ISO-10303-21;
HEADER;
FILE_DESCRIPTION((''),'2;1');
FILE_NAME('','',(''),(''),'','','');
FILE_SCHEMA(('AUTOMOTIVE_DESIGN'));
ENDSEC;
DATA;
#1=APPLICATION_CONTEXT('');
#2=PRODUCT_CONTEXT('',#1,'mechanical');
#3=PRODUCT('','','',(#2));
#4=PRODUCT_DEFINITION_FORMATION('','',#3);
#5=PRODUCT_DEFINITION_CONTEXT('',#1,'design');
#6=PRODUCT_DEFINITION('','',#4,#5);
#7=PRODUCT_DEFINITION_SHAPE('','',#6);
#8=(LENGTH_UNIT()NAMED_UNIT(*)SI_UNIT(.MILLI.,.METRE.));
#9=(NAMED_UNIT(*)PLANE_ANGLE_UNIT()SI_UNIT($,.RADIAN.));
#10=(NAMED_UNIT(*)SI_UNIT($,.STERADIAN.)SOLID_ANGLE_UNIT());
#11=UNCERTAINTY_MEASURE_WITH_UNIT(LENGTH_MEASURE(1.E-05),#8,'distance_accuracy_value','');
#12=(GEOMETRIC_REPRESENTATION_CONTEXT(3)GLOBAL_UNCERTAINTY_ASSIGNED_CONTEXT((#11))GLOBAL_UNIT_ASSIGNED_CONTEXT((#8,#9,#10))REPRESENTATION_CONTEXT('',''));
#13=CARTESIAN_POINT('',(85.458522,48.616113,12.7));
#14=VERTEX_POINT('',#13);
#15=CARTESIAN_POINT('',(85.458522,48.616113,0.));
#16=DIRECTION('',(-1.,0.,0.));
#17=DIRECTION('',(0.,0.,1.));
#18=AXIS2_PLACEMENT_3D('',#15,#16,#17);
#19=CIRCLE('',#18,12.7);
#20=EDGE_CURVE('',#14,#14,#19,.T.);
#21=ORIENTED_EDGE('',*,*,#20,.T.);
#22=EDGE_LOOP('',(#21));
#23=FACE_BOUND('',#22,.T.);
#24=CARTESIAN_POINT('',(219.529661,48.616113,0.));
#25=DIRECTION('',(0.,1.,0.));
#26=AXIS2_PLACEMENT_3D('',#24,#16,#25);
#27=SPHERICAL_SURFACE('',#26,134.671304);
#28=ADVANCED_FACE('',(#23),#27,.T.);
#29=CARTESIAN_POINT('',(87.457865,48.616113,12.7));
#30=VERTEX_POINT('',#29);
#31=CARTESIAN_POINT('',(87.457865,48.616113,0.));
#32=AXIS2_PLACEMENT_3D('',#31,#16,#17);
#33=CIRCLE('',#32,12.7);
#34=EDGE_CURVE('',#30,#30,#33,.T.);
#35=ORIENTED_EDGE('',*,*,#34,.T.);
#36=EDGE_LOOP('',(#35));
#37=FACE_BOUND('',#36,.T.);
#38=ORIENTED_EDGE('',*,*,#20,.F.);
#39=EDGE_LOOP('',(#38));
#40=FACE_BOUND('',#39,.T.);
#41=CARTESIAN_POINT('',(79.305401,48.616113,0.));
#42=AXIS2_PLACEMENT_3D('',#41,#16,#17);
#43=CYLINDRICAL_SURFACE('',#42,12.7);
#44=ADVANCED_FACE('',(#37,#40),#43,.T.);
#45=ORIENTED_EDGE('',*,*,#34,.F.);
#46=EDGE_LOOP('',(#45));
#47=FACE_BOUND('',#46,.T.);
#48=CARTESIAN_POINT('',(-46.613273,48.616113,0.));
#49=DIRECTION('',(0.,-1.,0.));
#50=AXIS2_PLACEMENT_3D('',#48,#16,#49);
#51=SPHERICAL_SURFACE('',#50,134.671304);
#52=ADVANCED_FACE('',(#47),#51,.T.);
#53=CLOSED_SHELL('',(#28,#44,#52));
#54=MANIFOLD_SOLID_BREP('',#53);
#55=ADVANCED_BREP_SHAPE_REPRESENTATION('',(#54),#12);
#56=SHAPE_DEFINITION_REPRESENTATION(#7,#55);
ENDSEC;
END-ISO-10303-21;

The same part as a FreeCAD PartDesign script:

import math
import FreeCAD as App
import Part
import Sketcher
from FreeCAD import Vector

doc = App.newDocument("Part")
body = doc.addObject("PartDesign::Body", "Body")

# Sketch on XY plane
sketch1 = body.newObject("Sketcher::SketchObject", "Sketch")
sketch1.AttachmentSupport = (doc.getObject("XY_Plane"), [""])
sketch1.MapMode = "FlatFace"
sketch1.addGeometry([
    Part.LineSegment(Vector(87.5, 61.3, 0), Vector(85.5, 61.3, 0)),
    Part.ArcOfCircle(Part.Circle(Vector(219.5, 48.6, 0), Vector(0, 0, 1), 134.7), math.radians(174.59), math.radians(180)),
    Part.LineSegment(Vector(84.9, 48.6, 0), Vector(88.1, 48.6, 0)),
    Part.ArcOfCircle(Part.Circle(Vector(-46.6, 48.6, 0), Vector(0, 0, 1), 134.7), math.radians(0), math.radians(5.41)),
], False)
sketch1.addGeometry(Part.LineSegment(Vector(-46.6, 48.6, 0), Vector(219.5, 48.6, 0)), True)  # axis
sketch1.addConstraint([
    Sketcher.Constraint("Coincident", 0, 2, 1, 1),
    Sketcher.Constraint("Coincident", 1, 2, 2, 1),
    Sketcher.Constraint("Coincident", 2, 2, 3, 1),
    Sketcher.Constraint("Coincident", 3, 2, 0, 1),
    Sketcher.Constraint("Horizontal", 0),
    Sketcher.Constraint("Horizontal", 2),
    Sketcher.Constraint("Horizontal", 4),
    Sketcher.Constraint("Coincident", 4, 1, 3, 3),
    Sketcher.Constraint("Coincident", 4, 2, 1, 3),
    Sketcher.Constraint("Equal", 1, 3),
    Sketcher.Constraint("Horizontal", 3, 3, 1, 2),
    Sketcher.Constraint("DistanceY", 3, 3, 0, 2, 12.7),
    Sketcher.Constraint("Radius", 1, 134.671305),
    Sketcher.Constraint("DistanceX", 0, 2, 0, 1, 1.999343),
    Sketcher.Constraint("DistanceX", -1, 1, 1, 3, 219.529661),
    Sketcher.Constraint("DistanceY", -1, 1, 1, 3, 48.616113),
])
revolution = body.newObject("PartDesign::Revolution", "Revolution")
revolution.Profile = sketch1
revolution.ReferenceAxis = (sketch1, ["Axis0"])
revolution.Angle = 360

doc.recompute()
